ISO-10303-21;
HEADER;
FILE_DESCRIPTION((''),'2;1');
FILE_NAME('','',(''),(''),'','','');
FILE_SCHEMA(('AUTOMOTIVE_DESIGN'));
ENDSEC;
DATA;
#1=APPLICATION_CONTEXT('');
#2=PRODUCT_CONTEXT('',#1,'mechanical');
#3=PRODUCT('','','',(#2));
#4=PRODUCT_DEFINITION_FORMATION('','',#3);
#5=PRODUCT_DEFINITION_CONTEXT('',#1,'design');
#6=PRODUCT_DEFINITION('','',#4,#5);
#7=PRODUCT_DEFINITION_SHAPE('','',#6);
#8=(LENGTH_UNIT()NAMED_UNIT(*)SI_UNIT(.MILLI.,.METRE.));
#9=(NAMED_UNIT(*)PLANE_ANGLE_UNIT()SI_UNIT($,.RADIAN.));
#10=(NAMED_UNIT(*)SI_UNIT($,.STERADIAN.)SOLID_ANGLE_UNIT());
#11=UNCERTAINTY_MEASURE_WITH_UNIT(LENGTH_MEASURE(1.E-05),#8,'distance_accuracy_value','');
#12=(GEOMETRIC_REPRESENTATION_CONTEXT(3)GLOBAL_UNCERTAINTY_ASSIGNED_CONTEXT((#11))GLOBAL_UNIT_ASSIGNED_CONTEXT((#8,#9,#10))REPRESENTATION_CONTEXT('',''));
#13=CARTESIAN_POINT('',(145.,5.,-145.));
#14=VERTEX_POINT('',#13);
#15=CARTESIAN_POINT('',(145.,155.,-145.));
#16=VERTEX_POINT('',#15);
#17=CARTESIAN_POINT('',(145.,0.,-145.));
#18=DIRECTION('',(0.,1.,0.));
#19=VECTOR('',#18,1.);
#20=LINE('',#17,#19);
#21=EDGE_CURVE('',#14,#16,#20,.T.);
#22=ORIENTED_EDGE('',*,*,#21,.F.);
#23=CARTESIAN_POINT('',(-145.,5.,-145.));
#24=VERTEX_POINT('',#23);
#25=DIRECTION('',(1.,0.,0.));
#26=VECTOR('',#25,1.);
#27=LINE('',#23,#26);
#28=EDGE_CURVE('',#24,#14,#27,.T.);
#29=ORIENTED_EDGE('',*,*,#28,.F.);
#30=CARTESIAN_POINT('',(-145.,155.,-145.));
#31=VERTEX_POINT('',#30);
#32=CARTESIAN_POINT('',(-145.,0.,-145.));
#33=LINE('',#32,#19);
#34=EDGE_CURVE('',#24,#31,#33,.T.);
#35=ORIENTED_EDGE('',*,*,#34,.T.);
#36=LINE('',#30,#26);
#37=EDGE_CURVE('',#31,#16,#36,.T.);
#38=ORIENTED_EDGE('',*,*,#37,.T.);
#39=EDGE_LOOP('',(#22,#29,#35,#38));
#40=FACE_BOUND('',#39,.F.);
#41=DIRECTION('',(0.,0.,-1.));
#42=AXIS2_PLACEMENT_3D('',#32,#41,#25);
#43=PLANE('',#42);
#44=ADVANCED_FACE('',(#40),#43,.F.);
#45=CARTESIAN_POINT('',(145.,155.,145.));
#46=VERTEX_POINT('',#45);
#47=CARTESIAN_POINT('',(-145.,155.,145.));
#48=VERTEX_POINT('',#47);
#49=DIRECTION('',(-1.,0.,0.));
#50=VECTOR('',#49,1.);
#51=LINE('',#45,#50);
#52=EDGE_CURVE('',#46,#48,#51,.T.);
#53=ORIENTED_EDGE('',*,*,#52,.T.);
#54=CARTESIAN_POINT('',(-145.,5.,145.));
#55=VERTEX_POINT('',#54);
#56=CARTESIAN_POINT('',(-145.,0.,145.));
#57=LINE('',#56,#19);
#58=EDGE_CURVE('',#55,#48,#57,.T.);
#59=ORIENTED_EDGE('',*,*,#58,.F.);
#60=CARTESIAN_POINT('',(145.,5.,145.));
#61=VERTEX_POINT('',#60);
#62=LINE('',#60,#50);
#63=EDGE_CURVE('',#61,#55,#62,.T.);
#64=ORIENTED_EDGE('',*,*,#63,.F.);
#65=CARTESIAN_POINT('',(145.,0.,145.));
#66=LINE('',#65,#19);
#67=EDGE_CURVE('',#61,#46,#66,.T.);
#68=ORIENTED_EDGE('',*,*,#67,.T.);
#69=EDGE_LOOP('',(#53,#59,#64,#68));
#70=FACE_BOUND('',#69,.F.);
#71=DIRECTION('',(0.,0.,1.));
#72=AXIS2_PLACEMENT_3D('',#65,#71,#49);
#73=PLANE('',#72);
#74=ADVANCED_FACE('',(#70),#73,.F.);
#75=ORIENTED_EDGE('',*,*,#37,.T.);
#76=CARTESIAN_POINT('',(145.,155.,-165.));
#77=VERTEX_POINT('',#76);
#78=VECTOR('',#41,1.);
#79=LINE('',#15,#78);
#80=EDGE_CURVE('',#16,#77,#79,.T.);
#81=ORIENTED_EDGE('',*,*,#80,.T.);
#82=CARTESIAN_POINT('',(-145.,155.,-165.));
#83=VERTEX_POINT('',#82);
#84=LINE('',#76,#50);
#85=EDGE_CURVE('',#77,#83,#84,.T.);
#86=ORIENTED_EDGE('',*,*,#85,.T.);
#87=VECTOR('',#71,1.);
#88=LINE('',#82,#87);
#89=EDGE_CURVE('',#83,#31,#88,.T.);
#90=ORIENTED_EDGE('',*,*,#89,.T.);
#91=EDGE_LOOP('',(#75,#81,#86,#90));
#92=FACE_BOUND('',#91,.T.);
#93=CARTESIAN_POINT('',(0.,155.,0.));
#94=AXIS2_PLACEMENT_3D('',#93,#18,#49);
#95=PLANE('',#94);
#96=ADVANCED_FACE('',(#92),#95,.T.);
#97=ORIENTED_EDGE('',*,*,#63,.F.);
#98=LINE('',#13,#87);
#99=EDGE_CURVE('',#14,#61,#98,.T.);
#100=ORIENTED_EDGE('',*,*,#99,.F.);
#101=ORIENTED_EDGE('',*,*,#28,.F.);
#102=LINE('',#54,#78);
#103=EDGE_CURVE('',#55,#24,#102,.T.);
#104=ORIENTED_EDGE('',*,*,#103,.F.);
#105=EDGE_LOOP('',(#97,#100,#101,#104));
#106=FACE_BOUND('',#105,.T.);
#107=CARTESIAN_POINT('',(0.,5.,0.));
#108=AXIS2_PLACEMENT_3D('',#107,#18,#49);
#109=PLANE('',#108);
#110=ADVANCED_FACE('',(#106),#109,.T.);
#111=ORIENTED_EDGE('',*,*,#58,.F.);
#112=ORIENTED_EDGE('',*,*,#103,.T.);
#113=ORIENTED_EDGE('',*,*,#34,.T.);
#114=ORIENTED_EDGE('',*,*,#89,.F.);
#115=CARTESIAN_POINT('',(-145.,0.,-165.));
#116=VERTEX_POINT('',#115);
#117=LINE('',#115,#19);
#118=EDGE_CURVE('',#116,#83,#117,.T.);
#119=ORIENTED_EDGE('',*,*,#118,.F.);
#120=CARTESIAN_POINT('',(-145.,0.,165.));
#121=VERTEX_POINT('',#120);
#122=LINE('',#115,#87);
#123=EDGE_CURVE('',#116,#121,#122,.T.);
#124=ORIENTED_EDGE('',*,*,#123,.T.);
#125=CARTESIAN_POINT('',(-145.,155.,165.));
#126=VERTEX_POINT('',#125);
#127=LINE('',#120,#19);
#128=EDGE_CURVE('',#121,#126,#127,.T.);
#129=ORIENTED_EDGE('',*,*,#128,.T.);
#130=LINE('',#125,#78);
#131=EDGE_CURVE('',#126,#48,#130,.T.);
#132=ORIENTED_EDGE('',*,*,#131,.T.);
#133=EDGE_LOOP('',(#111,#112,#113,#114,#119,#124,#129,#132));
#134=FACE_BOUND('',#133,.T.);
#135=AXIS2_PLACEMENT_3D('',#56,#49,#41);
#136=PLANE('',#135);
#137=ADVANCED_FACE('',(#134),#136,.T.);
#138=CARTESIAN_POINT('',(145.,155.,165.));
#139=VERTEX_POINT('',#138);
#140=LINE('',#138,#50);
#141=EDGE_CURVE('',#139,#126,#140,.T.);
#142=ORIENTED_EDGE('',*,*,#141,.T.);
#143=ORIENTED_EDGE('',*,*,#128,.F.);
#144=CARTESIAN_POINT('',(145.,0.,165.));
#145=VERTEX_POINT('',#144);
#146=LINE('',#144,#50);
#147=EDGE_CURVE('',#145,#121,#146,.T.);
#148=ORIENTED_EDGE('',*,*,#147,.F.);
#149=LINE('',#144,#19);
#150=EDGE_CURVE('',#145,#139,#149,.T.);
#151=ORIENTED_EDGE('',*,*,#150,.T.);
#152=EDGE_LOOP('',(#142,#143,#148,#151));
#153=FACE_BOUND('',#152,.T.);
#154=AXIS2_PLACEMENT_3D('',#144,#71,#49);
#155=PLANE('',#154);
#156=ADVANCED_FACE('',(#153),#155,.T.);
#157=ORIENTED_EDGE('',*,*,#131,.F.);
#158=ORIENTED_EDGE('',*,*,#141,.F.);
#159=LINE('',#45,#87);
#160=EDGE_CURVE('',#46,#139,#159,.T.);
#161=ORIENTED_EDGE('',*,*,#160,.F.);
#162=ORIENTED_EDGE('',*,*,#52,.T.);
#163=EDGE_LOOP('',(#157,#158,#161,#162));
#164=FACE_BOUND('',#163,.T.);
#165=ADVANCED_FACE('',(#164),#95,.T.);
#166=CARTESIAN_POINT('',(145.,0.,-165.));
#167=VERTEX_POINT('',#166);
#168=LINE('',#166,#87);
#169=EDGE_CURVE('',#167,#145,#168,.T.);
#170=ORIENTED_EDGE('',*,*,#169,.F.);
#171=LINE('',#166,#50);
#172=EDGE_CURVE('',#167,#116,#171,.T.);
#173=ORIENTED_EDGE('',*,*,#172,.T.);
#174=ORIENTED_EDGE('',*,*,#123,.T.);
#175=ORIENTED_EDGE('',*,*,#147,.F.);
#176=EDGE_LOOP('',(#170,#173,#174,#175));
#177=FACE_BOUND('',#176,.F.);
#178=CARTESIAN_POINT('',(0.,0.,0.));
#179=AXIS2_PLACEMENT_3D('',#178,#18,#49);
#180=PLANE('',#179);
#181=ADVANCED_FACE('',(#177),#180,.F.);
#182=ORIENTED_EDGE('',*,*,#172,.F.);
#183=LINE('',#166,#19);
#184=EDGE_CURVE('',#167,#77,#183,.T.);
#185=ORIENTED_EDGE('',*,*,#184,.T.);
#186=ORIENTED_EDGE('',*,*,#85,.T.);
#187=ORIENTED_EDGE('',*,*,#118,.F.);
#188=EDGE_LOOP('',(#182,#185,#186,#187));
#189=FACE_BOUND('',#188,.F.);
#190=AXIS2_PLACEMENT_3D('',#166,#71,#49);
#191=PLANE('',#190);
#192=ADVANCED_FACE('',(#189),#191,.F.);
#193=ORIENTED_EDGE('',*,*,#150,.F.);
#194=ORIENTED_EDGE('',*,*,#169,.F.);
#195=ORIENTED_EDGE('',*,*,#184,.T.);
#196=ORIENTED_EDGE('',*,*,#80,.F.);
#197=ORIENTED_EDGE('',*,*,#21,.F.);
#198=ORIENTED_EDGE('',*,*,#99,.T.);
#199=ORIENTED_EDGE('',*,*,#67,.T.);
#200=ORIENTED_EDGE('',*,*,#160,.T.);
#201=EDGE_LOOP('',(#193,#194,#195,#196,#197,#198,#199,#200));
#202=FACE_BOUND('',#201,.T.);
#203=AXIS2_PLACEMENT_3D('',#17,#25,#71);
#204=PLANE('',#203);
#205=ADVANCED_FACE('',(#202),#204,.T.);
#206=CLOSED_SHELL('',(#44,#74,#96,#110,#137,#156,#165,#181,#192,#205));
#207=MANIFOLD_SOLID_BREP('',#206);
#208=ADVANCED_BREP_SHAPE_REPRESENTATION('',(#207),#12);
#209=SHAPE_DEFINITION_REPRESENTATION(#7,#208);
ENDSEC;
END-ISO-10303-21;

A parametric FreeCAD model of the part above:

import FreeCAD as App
import Part
import Sketcher


def add_polygon(sketch, points):
    """Adds a closed chain of lines whose ends are joined by coincident constraints."""
    first, n = sketch.GeometryCount, len(points)
    for a, b in zip(points, points[1:] + points[:1]):
        sketch.addGeometry(Part.LineSegment(App.Vector(*a, 0), App.Vector(*b, 0)), False)
    for i in range(n):
        sketch.addConstraint(Sketcher.Constraint("Coincident", first + i, 2, first + (i + 1) % n, 1))

doc = App.newDocument("Part")
params = doc.addObject("Spreadsheet::Sheet", "Params")
for row, (alias, value) in enumerate([
    ("sketch1_width", "290 mm"),
    ("pad1_length", "5 mm"),
    ("sketch2_width", "290 mm"),
    ("sketch2_height", "20 mm"),
    ("pad2_length", "155 mm"),
], start=1):
    params.set(f"A{row}", alias)
    params.set(f"B{row}", "=" + value)
    params.setAlias(f"B{row}", alias)

body = doc.addObject("PartDesign::Body", "Body")

# Sketch on XZ plane
sketch1 = body.newObject("Sketcher::SketchObject", "Sketch")
sketch1.AttachmentSupport = (doc.getObject("XZ_Plane"), [""])
sketch1.MapMode = "FlatFace"
add_polygon(sketch1, [(-145, 145), (145, 145), (145, -145), (-145, -145)])  # lines 0-3
sketch1.addConstraint([
    Sketcher.Constraint("Horizontal", 0),
    Sketcher.Constraint("Vertical", 1),
    Sketcher.Constraint("Horizontal", 2),
    Sketcher.Constraint("Vertical", 3),
    Sketcher.Constraint("Symmetric", 0, 2, 2, 2, -1, 1),
    Sketcher.Constraint("Equal", 2, 1),
    Sketcher.Constraint("DistanceX", 0, 1, 0, 2, 290.0),
])
sketch1.setExpression("Constraints[10]", "Params.sketch1_width")
pad1 = body.newObject("PartDesign::Pad", "Pad")
pad1.Profile = sketch1
pad1.setExpression("Length", "Params.pad1_length")
pad1.Reversed = True

# Sketch on XZ plane
sketch2 = body.newObject("Sketcher::SketchObject", "Sketch001")
sketch2.AttachmentSupport = (doc.getObject("XZ_Plane"), [""])
sketch2.MapMode = "FlatFace"
add_polygon(sketch2, [(145, 165), (145, 145), (-145, 145), (-145, 165)])  # lines 0-3
add_polygon(sketch2, [(-145, -145), (145, -145), (145, -165), (-145, -165)])  # lines 4-7
sketch2.addConstraint([
    Sketcher.Constraint("Vertical", 0),
    Sketcher.Constraint("Horizontal", 1),
    Sketcher.Constraint("Vertical", 2),
    Sketcher.Constraint("Horizontal", 3),
    Sketcher.Constraint("Horizontal", 4),
    Sketcher.Constraint("Vertical", 5),
    Sketcher.Constraint("Horizontal", 6),
    Sketcher.Constraint("Vertical", 7),
    Sketcher.Constraint("Symmetric", 1, 2, 4, 2, -1, 1),
    Sketcher.Constraint("Symmetric", 3, 2, 6, 2, -1, 1),
    Sketcher.Constraint("Vertical", 3, 2, 4, 2),
    Sketcher.Constraint("DistanceX", 1, 2, 1, 1, 290.0),
    Sketcher.Constraint("DistanceY", 0, 2, 0, 1, 20.0),
    Sketcher.Constraint("DistanceY", 4, 2, 0, 2, 290.0),
])
sketch2.setExpression("Constraints[19]", "Params.sketch2_width")
sketch2.setExpression("Constraints[20]", "Params.sketch2_height")
pad2 = body.newObject("PartDesign::Pad", "Pad001")
pad2.Profile = sketch2
pad2.setExpression("Length", "Params.pad2_length")
pad2.Reversed = True

doc.recompute()
